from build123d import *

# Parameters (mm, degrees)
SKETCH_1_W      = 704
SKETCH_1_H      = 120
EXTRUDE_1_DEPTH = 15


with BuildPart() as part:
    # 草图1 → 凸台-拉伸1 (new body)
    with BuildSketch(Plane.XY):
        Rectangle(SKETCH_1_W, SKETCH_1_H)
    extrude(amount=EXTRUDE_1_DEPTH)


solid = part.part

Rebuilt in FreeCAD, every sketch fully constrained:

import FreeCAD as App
import Part
import Sketcher
Q = App.Units.Quantity

doc = App.newDocument("Part")
body = doc.addObject("PartDesign::Body", "Body")

# Sketch on XY plane
sketch1 = body.newObject("Sketcher::SketchObject", "Sketch")
sketch1.AttachmentSupport = (doc.getObject("XY_Plane"), [""])
sketch1.MapMode = "FlatFace"
sketch1.addGeometry(Part.LineSegment(App.Vector(-352, 60, 0), App.Vector(-352, -60, 0)), False)
sketch1.addGeometry(Part.LineSegment(App.Vector(-352, -60, 0), App.Vector(352, -60, 0)), False)
sketch1.addGeometry(Part.LineSegment(App.Vector(352, -60, 0), App.Vector(352, 60, 0)), False)
sketch1.addGeometry(Part.LineSegment(App.Vector(352, 60, 0), App.Vector(-352, 60, 0)), False)
sketch1.addConstraint(Sketcher.Constraint("Coincident", 0, 2, 1, 1))
sketch1.addConstraint(Sketcher.Constraint("Coincident", 1, 2, 2, 1))
sketch1.addConstraint(Sketcher.Constraint("Coincident", 2, 2, 3, 1))
sketch1.addConstraint(Sketcher.Constraint("Coincident", 3, 2, 0, 1))
sketch1.addConstraint(Sketcher.Constraint("Vertical", 0))
sketch1.addConstraint(Sketcher.Constraint("Horizontal", 1))
sketch1.addConstraint(Sketcher.Constraint("Vertical", 2))
sketch1.addConstraint(Sketcher.Constraint("Horizontal", 3))
sketch1.addConstraint(Sketcher.Constraint("Symmetric", 0, 2, 2, 2, -1, 1))
sketch1.addConstraint(Sketcher.Constraint("DistanceX", 1, 1, 1, 2, Q("704 mm")))
sketch1.addConstraint(Sketcher.Constraint("DistanceY", 0, 2, 0, 1, Q("120 mm")))
pad1 = body.newObject("PartDesign::Pad", "Pad")
pad1.Profile = sketch1
pad1.Length = 15

doc.recompute()
